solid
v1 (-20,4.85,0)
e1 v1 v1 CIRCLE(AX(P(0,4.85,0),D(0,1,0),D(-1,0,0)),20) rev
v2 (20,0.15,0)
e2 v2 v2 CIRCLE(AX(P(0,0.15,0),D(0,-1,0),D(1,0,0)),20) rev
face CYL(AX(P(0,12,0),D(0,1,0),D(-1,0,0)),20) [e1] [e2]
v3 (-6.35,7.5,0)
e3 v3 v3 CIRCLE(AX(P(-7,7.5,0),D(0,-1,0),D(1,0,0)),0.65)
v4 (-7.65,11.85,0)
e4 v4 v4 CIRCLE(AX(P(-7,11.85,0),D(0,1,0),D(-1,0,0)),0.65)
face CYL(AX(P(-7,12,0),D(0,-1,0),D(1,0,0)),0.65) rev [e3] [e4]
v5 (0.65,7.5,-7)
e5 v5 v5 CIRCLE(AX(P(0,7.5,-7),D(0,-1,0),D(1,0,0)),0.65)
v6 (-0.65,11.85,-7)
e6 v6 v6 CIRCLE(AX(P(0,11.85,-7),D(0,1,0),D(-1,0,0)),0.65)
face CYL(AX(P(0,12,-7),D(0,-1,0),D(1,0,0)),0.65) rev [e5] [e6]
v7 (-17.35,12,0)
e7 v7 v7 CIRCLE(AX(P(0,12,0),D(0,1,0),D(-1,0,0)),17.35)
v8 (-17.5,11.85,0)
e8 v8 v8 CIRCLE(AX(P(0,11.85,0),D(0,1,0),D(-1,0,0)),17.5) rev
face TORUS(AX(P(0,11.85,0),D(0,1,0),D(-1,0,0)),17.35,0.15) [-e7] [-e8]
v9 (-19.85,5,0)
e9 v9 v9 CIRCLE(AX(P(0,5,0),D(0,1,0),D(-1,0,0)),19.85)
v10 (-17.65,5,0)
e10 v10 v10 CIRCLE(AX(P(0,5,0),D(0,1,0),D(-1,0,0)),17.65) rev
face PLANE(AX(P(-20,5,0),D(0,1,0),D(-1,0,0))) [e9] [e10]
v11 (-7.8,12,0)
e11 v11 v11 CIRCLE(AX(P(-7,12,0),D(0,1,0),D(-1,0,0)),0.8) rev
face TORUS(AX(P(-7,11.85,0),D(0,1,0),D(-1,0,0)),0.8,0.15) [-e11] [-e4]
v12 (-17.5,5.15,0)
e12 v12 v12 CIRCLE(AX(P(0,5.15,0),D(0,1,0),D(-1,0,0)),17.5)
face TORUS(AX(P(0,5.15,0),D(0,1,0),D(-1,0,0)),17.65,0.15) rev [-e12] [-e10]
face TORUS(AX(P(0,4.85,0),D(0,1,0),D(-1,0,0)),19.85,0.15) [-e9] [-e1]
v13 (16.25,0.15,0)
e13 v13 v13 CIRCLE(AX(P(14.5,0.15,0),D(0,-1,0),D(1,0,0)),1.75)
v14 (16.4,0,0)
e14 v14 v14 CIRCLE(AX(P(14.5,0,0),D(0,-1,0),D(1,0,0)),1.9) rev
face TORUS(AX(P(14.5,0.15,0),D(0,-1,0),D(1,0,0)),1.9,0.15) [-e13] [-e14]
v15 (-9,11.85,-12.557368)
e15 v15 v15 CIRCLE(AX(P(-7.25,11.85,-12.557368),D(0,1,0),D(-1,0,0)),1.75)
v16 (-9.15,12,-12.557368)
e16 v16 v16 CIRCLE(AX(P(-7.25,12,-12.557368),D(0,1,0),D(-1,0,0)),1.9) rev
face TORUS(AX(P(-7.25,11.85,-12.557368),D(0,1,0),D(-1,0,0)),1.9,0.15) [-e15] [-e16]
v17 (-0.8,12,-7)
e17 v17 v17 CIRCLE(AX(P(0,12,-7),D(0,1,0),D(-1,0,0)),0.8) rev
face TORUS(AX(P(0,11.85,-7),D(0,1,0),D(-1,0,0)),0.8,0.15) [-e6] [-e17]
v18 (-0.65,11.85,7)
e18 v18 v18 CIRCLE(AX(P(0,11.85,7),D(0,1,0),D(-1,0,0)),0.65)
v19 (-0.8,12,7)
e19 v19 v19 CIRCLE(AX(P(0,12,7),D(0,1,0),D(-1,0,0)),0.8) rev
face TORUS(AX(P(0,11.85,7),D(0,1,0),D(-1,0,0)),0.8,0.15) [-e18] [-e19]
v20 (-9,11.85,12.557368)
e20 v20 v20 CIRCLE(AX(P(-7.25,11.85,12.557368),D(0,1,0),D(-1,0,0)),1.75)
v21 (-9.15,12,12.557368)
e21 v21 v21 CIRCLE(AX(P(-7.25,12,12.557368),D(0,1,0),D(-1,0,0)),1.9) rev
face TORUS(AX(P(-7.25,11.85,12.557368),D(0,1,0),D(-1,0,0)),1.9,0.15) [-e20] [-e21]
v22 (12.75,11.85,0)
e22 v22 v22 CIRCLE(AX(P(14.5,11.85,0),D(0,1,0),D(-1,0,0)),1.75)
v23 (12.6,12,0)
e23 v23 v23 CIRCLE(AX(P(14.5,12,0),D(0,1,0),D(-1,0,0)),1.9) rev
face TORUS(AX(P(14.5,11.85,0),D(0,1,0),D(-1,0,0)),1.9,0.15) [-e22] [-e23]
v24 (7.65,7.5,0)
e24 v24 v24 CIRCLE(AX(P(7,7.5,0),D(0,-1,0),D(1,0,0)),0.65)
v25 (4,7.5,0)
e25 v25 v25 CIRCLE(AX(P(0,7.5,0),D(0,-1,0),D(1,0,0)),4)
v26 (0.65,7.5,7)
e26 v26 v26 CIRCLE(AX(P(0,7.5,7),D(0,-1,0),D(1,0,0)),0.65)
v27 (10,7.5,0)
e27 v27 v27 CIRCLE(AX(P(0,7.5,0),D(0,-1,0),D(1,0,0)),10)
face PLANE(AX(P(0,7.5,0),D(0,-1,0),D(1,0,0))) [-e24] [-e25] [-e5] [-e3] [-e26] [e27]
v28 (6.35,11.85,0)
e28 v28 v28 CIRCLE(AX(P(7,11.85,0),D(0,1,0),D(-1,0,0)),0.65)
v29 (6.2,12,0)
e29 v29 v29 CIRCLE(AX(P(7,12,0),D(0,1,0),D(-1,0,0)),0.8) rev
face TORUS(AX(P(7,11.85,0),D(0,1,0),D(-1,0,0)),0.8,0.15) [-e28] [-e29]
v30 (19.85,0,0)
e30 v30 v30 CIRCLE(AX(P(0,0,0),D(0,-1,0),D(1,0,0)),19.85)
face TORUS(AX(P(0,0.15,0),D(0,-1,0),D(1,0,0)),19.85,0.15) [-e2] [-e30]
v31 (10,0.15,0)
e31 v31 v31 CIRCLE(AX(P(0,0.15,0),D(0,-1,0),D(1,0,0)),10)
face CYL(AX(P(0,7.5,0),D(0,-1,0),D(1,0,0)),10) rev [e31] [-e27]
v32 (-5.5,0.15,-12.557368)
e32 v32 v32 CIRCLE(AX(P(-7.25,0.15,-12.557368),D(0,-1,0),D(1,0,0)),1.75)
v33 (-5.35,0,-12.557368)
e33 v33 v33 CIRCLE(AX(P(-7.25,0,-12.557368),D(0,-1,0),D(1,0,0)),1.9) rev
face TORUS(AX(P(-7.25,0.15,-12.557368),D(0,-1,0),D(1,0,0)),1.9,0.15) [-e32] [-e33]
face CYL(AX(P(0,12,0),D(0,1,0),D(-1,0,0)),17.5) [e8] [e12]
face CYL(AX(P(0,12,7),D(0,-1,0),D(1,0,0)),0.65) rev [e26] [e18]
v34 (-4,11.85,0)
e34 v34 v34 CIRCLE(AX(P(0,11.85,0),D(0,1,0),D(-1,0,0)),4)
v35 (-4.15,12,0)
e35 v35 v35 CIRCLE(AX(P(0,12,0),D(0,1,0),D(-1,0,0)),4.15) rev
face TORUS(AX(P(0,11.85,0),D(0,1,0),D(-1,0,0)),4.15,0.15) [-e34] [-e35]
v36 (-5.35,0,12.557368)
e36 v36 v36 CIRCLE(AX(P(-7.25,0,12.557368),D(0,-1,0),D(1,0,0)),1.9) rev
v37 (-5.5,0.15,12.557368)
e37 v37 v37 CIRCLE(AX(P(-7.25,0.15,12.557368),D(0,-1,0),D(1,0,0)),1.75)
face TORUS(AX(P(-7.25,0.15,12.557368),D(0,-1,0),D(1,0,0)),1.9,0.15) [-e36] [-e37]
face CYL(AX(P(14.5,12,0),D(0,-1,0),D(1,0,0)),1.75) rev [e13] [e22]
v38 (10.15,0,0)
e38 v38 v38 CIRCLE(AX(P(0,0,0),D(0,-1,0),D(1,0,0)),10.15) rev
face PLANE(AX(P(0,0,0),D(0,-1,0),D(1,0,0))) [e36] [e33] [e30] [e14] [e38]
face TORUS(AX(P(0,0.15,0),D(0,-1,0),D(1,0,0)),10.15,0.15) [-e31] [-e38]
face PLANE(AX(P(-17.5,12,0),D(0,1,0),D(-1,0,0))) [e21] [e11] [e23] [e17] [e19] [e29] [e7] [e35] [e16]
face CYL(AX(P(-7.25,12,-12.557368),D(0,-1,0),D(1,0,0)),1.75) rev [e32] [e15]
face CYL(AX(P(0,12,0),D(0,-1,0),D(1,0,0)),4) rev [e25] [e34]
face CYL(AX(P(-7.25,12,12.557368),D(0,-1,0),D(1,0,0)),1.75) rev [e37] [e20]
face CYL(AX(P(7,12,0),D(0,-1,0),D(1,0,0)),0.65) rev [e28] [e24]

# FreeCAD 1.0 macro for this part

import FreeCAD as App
import Part
import Sketcher


def edges_at(feature, points):
    """Names of the edges that pass closest to the given points."""
    edges = feature.Shape.Edges
    near = lambda p: min(range(len(edges)), key=lambda i: edges[i].distToShape(Part.Vertex(*p))[0])
    return sorted({f"Edge{near(p) + 1}" for p in points})

doc = App.newDocument("Part")
body = doc.addObject("PartDesign::Body", "Body")

sketch1 = body.newObject("Sketcher::SketchObject", "Sketch")
sketch1.AttachmentSupport = (doc.getObject("XY_Plane"), [""])
sketch1.MapMode = "FlatFace"
sketch1.addGeometry([
    Part.LineSegment(App.Vector(-20, 0, 0), App.Vector(0, 0, 0)),
    Part.LineSegment(App.Vector(0, 0, 0), App.Vector(0, 12, 0)),
    Part.LineSegment(App.Vector(0, 12, 0), App.Vector(-17.5, 12, 0)),
    Part.LineSegment(App.Vector(-17.5, 12, 0), App.Vector(-17.5, 5, 0)),
    Part.LineSegment(App.Vector(-17.5, 5, 0), App.Vector(-20, 5, 0)),
    Part.LineSegment(App.Vector(-20, 5, 0), App.Vector(-20, 0, 0)),
], False)
sketch1.addConstraint([
    Sketcher.Constraint("Coincident", 0, 2, 1, 1),
    Sketcher.Constraint("Coincident", 1, 2, 2, 1),
    Sketcher.Constraint("Coincident", 2, 2, 3, 1),
    Sketcher.Constraint("Coincident", 3, 2, 4, 1),
    Sketcher.Constraint("Coincident", 4, 2, 5, 1),
    Sketcher.Constraint("Coincident", 5, 2, 0, 1),
    Sketcher.Constraint("Horizontal", 0),
    Sketcher.Constraint("Vertical", 1),
    Sketcher.Constraint("Horizontal", 2),
    Sketcher.Constraint("Vertical", 3),
    Sketcher.Constraint("Horizontal", 4),
    Sketcher.Constraint("Vertical", 5),
    Sketcher.Constraint("Coincident", 0, 2, -1, 1),
    Sketcher.Constraint("DistanceX", 0, 1, 0, 2, 20.0),
    Sketcher.Constraint("DistanceY", 1, 1, 1, 2, 12.0),
    Sketcher.Constraint("DistanceY", 3, 2, 3, 1, 7.0),
    Sketcher.Constraint("DistanceX", 2, 2, 2, 1, 17.5),
])
revolution = body.newObject("PartDesign::Revolution", "Revolution")
revolution.Profile = sketch1
revolution.ReferenceAxis = (sketch1, ["V_Axis"])
revolution.Angle = 360

sketch2 = body.newObject("Sketcher::SketchObject", "Sketch001")
sketch2.AttachmentSupport = (doc.getObject("XZ_Plane"), [""])
sketch2.MapMode = "FlatFace"
sketch2.addGeometry([
    Part.Circle(App.Vector(-7.2, 12.6, 0), App.Vector(0, 0, 1), 1.8),
    Part.Circle(App.Vector(0, -7, 0), App.Vector(0, 0, 1), 0.7),
    Part.Circle(App.Vector(0, 7, 0), App.Vector(0, 0, 1), 0.7),
    Part.Circle(App.Vector(7, 0, 0), App.Vector(0, 0, 1), 0.7),
    Part.Circle(App.Vector(-7, 0, 0), App.Vector(0, 0, 1), 0.7),
    Part.Circle(App.Vector(14.5, 0, 0), App.Vector(0, 0, 1), 1.8),
    Part.Circle(App.Vector(-7.2, -12.6, 0), App.Vector(0, 0, 1), 1.8),
    Part.Circle(App.Vector(0, 0, 0), App.Vector(0, 0, 1), 4),
], False)
sketch2.addConstraint([
    Sketcher.Constraint("Coincident", 7, 3, -1, 1),
    Sketcher.Constraint("Equal", 1, 2),
    Sketcher.Constraint("Equal", 2, 3),
    Sketcher.Constraint("Equal", 3, 4),
    Sketcher.Constraint("Equal", 0, 5),
    Sketcher.Constraint("Equal", 5, 6),
    Sketcher.Constraint("Symmetric", 1, 3, 2, 3, -1, 1),
    Sketcher.Constraint("Symmetric", 3, 3, 4, 3, -1, 1),
    Sketcher.Constraint("Symmetric", 0, 3, 6, 3, -1),
    Sketcher.Constraint("PointOnObject", 1, 3, -2),
    Sketcher.Constraint("PointOnObject", 3, 3, -1),
    Sketcher.Constraint("PointOnObject", 5, 3, -1),
    Sketcher.Constraint("Diameter", 7, 8.0),
    Sketcher.Constraint("Diameter", 0, 3.5),
    Sketcher.Constraint("Diameter", 1, 1.3),
    Sketcher.Constraint("DistanceY", 1, 3, -1, 1, 7.0),
    Sketcher.Constraint("DistanceX", -1, 1, 3, 3, 7.0),
    Sketcher.Constraint("DistanceX", -1, 1, 5, 3, 14.5),
    Sketcher.Constraint("DistanceX", 0, 3, -1, 1, 7.25),
    Sketcher.Constraint("DistanceY", -1, 1, 0, 3, 12.557368),
])
pocket1 = body.newObject("PartDesign::Pocket", "Pocket")
pocket1.Profile = sketch2
pocket1.Type = "ThroughAll"

sketch3 = body.newObject("Sketcher::SketchObject", "Sketch002")
sketch3.AttachmentSupport = (doc.getObject("XZ_Plane"), [""])
sketch3.MapMode = "FlatFace"
sketch3.addGeometry([
    Part.Circle(App.Vector(0, 0, 0), App.Vector(0, 0, 1), 10),
    Part.Circle(App.Vector(0, -7, 0), App.Vector(0, 0, 1), 0.7),
    Part.Circle(App.Vector(-7, 0, 0), App.Vector(0, 0, 1), 0.7),
    Part.Circle(App.Vector(0, 0, 0), App.Vector(0, 0, 1), 4),
    Part.Circle(App.Vector(7, 0, 0), App.Vector(0, 0, 1), 0.7),
    Part.Circle(App.Vector(0, 7, 0), App.Vector(0, 0, 1), 0.7),
    Part.Circle(App.Vector(14.5, 0, 0), App.Vector(0, 0, 1), 1.8),
    Part.Circle(App.Vector(-7.2, -12.6, 0), App.Vector(0, 0, 1), 1.8),
    Part.Circle(App.Vector(-7.2, 12.6, 0), App.Vector(0, 0, 1), 1.8),
], False)
sketch3.addConstraint([
    Sketcher.Constraint("Coincident", 0, 3, -1, 1),
    Sketcher.Constraint("Coincident", 3, 3, -1, 1),
    Sketcher.Constraint("Equal", 1, 2),
    Sketcher.Constraint("Equal", 2, 4),
    Sketcher.Constraint("Equal", 4, 5),
    Sketcher.Constraint("Equal", 6, 7),
    Sketcher.Constraint("Equal", 7, 8),
    Sketcher.Constraint("Symmetric", 2, 3, 4, 3, -1, 1),
    Sketcher.Constraint("Symmetric", 1, 3, 5, 3, -1, 1),
    Sketcher.Constraint("Symmetric", 7, 3, 8, 3, -1),
    Sketcher.Constraint("PointOnObject", 1, 3, -2),
    Sketcher.Constraint("PointOnObject", 2, 3, -1),
    Sketcher.Constraint("PointOnObject", 6, 3, -1),
    Sketcher.Constraint("Diameter", 0, 20.0),
    Sketcher.Constraint("Diameter", 3, 8.0),
    Sketcher.Constraint("Diameter", 1, 1.3),
    Sketcher.Constraint("Diameter", 6, 3.5),
    Sketcher.Constraint("DistanceY", 1, 3, -1, 1, 7.0),
    Sketcher.Constraint("DistanceX", 2, 3, -1, 1, 7.0),
    Sketcher.Constraint("DistanceX", -1, 1, 6, 3, 14.5),
    Sketcher.Constraint("DistanceX", 7, 3, -1, 1, 7.25),
    Sketcher.Constraint("DistanceY", 7, 3, -1, 1, 12.557368),
])
pocket2 = body.newObject("PartDesign::Pocket", "Pocket001")
pocket2.Profile = sketch3
pocket2.Length = 7.5
doc.recompute()

fillet = body.newObject("PartDesign::Fillet", "Fillet")
fillet.Base = (pocket2, edges_at(pocket2, [
    (-9, 12, 12.557),
    (-9, 0, 12.557),
    (12.75, 12, 0),
    (12.75, 0, 0),
    (-9, 12, -12.557),
    (-9, 0, -12.557),
    (-4, 12, 0),
    (-0.65, 12, -7),
    (-0.65, 12, 7),
    (6.35, 12, 0),
    (-7.65, 12, 0),
    (17.5, 12, 0),
    (-10, 0, 0),
    (17.5, 5, 0),
    (20, 5, 0),
    (20, 0, 0),
]))
fillet.Radius = 0.15

doc.recompute()
